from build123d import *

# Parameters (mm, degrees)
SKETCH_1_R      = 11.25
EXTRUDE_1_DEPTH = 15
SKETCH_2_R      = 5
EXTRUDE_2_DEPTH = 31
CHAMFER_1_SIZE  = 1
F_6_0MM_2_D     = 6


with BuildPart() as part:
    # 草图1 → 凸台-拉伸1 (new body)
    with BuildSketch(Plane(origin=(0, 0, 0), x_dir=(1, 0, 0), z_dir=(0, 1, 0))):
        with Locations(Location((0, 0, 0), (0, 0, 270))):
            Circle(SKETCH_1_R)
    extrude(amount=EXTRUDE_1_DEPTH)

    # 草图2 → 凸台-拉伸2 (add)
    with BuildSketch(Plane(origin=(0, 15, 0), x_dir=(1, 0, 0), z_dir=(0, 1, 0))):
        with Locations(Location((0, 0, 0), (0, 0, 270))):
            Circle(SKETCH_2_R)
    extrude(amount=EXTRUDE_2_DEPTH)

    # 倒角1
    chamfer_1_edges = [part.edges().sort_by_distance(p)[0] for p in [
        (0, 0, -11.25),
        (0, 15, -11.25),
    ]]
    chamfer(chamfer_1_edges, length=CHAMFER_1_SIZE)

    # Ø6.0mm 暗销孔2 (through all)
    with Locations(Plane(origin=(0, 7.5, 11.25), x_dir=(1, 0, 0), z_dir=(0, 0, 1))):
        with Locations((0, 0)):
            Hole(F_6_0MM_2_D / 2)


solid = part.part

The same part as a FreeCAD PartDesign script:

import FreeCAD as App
import Part
import Sketcher
from FreeCAD import Vector
Q = App.Units.Quantity


def edges_at(feature, points):
    """Names of the edges that pass closest to the given points."""
    edges = feature.Shape.Edges
    near = lambda p: min(range(len(edges)), key=lambda i: edges[i].distToShape(Part.Vertex(*p))[0])
    return sorted({f"Edge{near(p) + 1}" for p in points})

doc = App.newDocument("Part")
params = doc.addObject("Spreadsheet::Sheet", "Params")
for row, (alias, value) in enumerate([
    ("sketch1_diameter", "22.5 mm"),
    ("pad1_length", "15 mm"),
    ("sketch2_diameter", "10 mm"),
    ("pad2_length", "31 mm"),
    ("chamfer_size", "1 mm"),
    ("sketch3_diameter", "6 mm"),
    ("hole_diameter", "6 mm"),
], start=1):
    params.set(f"A{row}", alias)
    params.set(f"B{row}", "=" + value)
    params.setAlias(f"B{row}", alias)

body = doc.addObject("PartDesign::Body", "Body")

# Sketch on XZ plane
sketch1 = body.newObject("Sketcher::SketchObject", "Sketch")
sketch1.AttachmentSupport = (doc.getObject("XZ_Plane"), [""])
sketch1.MapMode = "FlatFace"
sketch1.addGeometry(Part.Circle(Vector(0, 0, 0), Vector(0, 0, 1), 11), False)
sketch1.addConstraint(Sketcher.Constraint("Coincident", 0, 3, -1, 1))
sketch1.addConstraint(Sketcher.Constraint("Diameter", 0, Q("22.5 mm")))
sketch1.setExpression("Constraints[1]", "Params.sketch1_diameter")
pad1 = body.newObject("PartDesign::Pad", "Pad")
pad1.Profile = sketch1
pad1.setExpression("Length", "Params.pad1_length")
pad1.Reversed = True

# Sketch on XZ plane
sketch2 = body.newObject("Sketcher::SketchObject", "Sketch001")
sketch2.AttachmentSupport = (doc.getObject("XZ_Plane"), [""])
sketch2.MapMode = "FlatFace"
sketch2.AttachmentOffset = App.Placement(Vector(0, 0, -15), App.Rotation())
sketch2.addGeometry(Part.Circle(Vector(0, 0, 0), Vector(0, 0, 1), 5), False)
sketch2.addConstraint(Sketcher.Constraint("Coincident", 0, 3, -1, 1))
sketch2.addConstraint(Sketcher.Constraint("Diameter", 0, Q("10 mm")))
sketch2.setExpression("Constraints[1]", "Params.sketch2_diameter")
pad2 = body.newObject("PartDesign::Pad", "Pad001")
pad2.Profile = sketch2
pad2.setExpression("Length", "Params.pad2_length")
pad2.Reversed = True
doc.recompute()

chamfer = body.newObject("PartDesign::Chamfer", "Chamfer")
chamfer.Base = (pad2, edges_at(pad2, [(0, 0, -11.25), (0, 15, -11.25)]))
chamfer.setExpression("Size", "Params.chamfer_size")

# Sketch on XY plane
sketch3 = body.newObject("Sketcher::SketchObject", "Sketch002")
sketch3.AttachmentSupport = (doc.getObject("XY_Plane"), [""])
sketch3.MapMode = "FlatFace"
sketch3.AttachmentOffset = App.Placement(Vector(0, 0, 11.25), App.Rotation())
sketch3.addGeometry(Part.Circle(Vector(0, 7.5, 0), Vector(0, 0, 1), 3), False)
sketch3.addConstraint(Sketcher.Constraint("PointOnObject", 0, 3, -2))
sketch3.addConstraint(Sketcher.Constraint("Diameter", 0, Q("6 mm")))
sketch3.addConstraint(Sketcher.Constraint("DistanceY", -1, 1, 0, 3, Q("7.5 mm")))
sketch3.setExpression("Constraints[1]", "Params.sketch3_diameter")
doc.recompute()
hole = body.newObject("PartDesign::Hole", "Hole")
hole.Profile = sketch3
hole.ThreadType = "None"
hole.setExpression("Diameter", "Params.hole_diameter")
hole.DepthType = "ThroughAll"

doc.recompute()
